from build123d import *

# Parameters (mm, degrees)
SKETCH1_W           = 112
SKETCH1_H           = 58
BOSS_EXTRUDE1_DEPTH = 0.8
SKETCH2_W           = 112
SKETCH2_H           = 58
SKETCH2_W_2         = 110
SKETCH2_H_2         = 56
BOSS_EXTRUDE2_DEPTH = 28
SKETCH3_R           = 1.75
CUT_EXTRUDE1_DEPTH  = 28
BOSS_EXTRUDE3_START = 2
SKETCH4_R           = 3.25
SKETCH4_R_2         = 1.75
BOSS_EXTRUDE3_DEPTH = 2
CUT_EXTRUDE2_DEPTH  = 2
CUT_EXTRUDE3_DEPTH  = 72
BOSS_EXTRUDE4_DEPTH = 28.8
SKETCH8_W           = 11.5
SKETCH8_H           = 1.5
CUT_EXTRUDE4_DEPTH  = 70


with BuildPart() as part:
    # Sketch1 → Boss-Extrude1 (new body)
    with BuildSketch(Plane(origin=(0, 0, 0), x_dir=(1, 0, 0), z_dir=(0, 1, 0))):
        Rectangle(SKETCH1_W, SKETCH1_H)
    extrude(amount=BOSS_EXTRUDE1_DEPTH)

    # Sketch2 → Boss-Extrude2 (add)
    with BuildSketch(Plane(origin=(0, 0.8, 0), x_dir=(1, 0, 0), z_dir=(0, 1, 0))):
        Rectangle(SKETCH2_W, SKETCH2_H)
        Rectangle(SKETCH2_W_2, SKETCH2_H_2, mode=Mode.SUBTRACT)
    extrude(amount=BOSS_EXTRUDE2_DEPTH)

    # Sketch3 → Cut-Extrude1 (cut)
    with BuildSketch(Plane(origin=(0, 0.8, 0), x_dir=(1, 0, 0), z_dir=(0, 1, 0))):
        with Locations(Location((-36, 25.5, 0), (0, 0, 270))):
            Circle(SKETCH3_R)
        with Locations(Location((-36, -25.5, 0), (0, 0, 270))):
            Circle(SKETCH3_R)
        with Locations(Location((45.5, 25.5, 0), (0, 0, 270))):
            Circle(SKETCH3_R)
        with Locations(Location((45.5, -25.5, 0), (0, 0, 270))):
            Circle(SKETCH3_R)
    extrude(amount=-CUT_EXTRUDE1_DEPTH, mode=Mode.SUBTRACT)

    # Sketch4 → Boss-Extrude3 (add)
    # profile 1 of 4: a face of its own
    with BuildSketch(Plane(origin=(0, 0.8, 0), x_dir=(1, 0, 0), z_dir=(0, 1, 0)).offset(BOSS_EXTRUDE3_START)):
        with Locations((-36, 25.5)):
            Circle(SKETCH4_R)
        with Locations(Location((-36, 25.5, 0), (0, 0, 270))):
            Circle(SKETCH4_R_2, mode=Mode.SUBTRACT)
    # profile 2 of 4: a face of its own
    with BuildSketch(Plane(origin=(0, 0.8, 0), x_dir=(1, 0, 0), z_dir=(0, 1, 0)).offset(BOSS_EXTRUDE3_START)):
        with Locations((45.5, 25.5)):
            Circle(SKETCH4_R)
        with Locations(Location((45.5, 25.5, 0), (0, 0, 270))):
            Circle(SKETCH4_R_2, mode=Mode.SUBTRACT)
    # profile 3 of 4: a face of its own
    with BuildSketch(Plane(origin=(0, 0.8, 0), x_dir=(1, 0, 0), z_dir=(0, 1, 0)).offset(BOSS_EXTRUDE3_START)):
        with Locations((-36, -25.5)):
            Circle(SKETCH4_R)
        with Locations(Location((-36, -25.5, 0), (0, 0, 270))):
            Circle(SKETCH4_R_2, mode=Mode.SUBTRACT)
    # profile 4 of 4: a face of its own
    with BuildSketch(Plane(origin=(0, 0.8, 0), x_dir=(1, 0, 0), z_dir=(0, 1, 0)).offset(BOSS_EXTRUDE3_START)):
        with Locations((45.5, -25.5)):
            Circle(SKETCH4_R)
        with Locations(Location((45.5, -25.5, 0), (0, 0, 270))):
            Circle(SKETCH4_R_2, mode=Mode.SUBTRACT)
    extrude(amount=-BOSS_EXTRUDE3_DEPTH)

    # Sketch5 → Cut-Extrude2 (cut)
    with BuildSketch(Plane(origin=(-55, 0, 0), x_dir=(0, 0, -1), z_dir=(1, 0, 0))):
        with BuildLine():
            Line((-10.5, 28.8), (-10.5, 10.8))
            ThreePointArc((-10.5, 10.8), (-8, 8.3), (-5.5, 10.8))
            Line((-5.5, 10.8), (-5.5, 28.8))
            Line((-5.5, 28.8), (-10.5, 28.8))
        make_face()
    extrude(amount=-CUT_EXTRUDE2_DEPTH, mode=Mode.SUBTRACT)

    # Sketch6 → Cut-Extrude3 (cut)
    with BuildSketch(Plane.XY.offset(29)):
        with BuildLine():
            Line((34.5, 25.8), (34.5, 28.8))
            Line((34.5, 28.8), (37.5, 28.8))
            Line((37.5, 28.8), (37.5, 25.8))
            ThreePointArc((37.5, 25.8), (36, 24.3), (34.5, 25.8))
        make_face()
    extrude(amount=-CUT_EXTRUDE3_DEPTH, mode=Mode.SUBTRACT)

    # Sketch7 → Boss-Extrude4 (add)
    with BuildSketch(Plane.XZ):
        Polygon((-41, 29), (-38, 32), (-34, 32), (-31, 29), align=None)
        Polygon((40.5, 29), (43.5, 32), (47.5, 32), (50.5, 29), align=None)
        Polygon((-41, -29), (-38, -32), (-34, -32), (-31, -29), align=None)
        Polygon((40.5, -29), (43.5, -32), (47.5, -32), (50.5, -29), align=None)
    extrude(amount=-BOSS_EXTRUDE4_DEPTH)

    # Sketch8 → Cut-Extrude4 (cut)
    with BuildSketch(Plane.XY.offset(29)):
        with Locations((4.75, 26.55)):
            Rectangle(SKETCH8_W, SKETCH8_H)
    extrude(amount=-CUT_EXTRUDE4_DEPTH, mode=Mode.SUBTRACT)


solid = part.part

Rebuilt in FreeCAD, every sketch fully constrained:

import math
import FreeCAD as App
import Part
import Sketcher

V = App.Vector

doc = App.newDocument("Part")
body = doc.addObject("PartDesign::Body", "Body")

# Sketch on XZ plane
sketch1 = doc.addObject("Sketcher::SketchObject", "Sketch")
body.addObject(sketch1)
sketch1.AttachmentSupport = (doc.XZ_Plane, [""])
sketch1.MapMode = "FlatFace"
sketch1.addGeometry([
    Part.LineSegment(V(-56, -29, 0), V(-56, 29, 0)),
    Part.LineSegment(V(-56, 29, 0), V(56, 29, 0)),
    Part.LineSegment(V(56, 29, 0), V(56, -29, 0)),
    Part.LineSegment(V(56, -29, 0), V(-56, -29, 0)),
], False)
sketch1.addConstraint([
    Sketcher.Constraint("Coincident", 0, 2, 1, 1),
    Sketcher.Constraint("Coincident", 1, 2, 2, 1),
    Sketcher.Constraint("Coincident", 2, 2, 3, 1),
    Sketcher.Constraint("Coincident", 3, 2, 0, 1),
    Sketcher.Constraint("Vertical", 0),
    Sketcher.Constraint("Horizontal", 1),
    Sketcher.Constraint("Vertical", 2),
    Sketcher.Constraint("Horizontal", 3),
    Sketcher.Constraint("Symmetric", 0, 2, 2, 2, -1, 1),
    Sketcher.Constraint("DistanceX", 1, 1, 1, 2, 112.0),
    Sketcher.Constraint("DistanceY", 0, 1, 0, 2, 58.0),
])
pad1 = doc.addObject("PartDesign::Pad", "Pad")
body.addObject(pad1)
pad1.Profile = sketch1
pad1.Length = 0.8
pad1.Reversed = True

# Sketch on XZ plane
sketch2 = doc.addObject("Sketcher::SketchObject", "Sketch001")
body.addObject(sketch2)
sketch2.AttachmentSupport = (doc.XZ_Plane, [""])
sketch2.MapMode = "FlatFace"
sketch2.AttachmentOffset = App.Placement(V(0, 0, -0.8), App.Rotation())
sketch2.addGeometry([
    Part.LineSegment(V(-56, -29, 0), V(-56, 29, 0)),  # 0
    Part.LineSegment(V(-56, 29, 0), V(56, 29, 0)),  # 1
    Part.LineSegment(V(56, 29, 0), V(56, -29, 0)),  # 2
    Part.LineSegment(V(56, -29, 0), V(-56, -29, 0)),  # 3
    Part.LineSegment(V(55, 28, 0), V(-55, 28, 0)),  # 4
    Part.LineSegment(V(-55, 28, 0), V(-55, -28, 0)),  # 5
    Part.LineSegment(V(-55, -28, 0), V(55, -28, 0)),  # 6
    Part.LineSegment(V(55, -28, 0), V(55, 28, 0)),  # 7
], False)
sketch2.addConstraint([
    Sketcher.Constraint("Coincident", 0, 2, 1, 1),
    Sketcher.Constraint("Coincident", 1, 2, 2, 1),
    Sketcher.Constraint("Coincident", 2, 2, 3, 1),
    Sketcher.Constraint("Coincident", 3, 2, 0, 1),
    Sketcher.Constraint("Coincident", 4, 2, 5, 1),
    Sketcher.Constraint("Coincident", 5, 2, 6, 1),
    Sketcher.Constraint("Coincident", 6, 2, 7, 1),
    Sketcher.Constraint("Coincident", 7, 2, 4, 1),
    Sketcher.Constraint("Vertical", 0),
    Sketcher.Constraint("Horizontal", 1),
    Sketcher.Constraint("Vertical", 2),
    Sketcher.Constraint("Horizontal", 3),
    Sketcher.Constraint("Horizontal", 4),
    Sketcher.Constraint("Vertical", 5),
    Sketcher.Constraint("Horizontal", 6),
    Sketcher.Constraint("Vertical", 7),
    Sketcher.Constraint("Symmetric", 0, 2, 2, 2, -1, 1),
    Sketcher.Constraint("Symmetric", 4, 2, 6, 2, -1, 1),
    Sketcher.Constraint("DistanceX", 1, 1, 1, 2, 112.0),
    Sketcher.Constraint("DistanceX", 4, 2, 4, 1, 110.0),
    Sketcher.Constraint("DistanceY", 0, 1, 0, 2, 58.0),
    Sketcher.Constraint("DistanceY", 5, 2, 5, 1, 56.0),
])
pad2 = doc.addObject("PartDesign::Pad", "Pad001")
body.addObject(pad2)
pad2.Profile = sketch2
pad2.Length = 28
pad2.Reversed = True

# Sketch on XZ plane
sketch3 = doc.addObject("Sketcher::SketchObject", "Sketch002")
body.addObject(sketch3)
sketch3.AttachmentSupport = (doc.XZ_Plane, [""])
sketch3.MapMode = "FlatFace"
sketch3.AttachmentOffset = App.Placement(V(0, 0, -0.8), App.Rotation())
sketch3.addGeometry([
    Part.Circle(V(-36, -25.5, 0), V(0, 0, 1), 1.8),
    Part.Circle(V(-36, 25.5, 0), V(0, 0, 1), 1.8),
    Part.Circle(V(45.5, -25.5, 0), V(0, 0, 1), 1.8),
    Part.Circle(V(45.5, 25.5, 0), V(0, 0, 1), 1.8),
], False)
sketch3.addConstraint([
    Sketcher.Constraint("Equal", 0, 1),
    Sketcher.Constraint("Equal", 1, 2),
    Sketcher.Constraint("Equal", 2, 3),
    Sketcher.Constraint("Symmetric", 0, 3, 1, 3, -1),
    Sketcher.Constraint("Symmetric", 2, 3, 3, 3, -1),
    Sketcher.Constraint("Horizontal", 0, 3, 2, 3),
    Sketcher.Constraint("Diameter", 0, 3.5),
    Sketcher.Constraint("DistanceX", 0, 3, -1, 1, 36.0),
    Sketcher.Constraint("DistanceY", 0, 3, 1, 3, 51.0),
    Sketcher.Constraint("DistanceX", -1, 1, 2, 3, 45.5),
])
pocket1 = doc.addObject("PartDesign::Pocket", "Pocket")
body.addObject(pocket1)
pocket1.Profile = sketch3
pocket1.Length = 28
pocket1.Reversed = True

# Sketch on XZ plane
sketch4 = doc.addObject("Sketcher::SketchObject", "Sketch003")
body.addObject(sketch4)
sketch4.AttachmentSupport = (doc.XZ_Plane, [""])
sketch4.MapMode = "FlatFace"
sketch4.AttachmentOffset = App.Placement(V(0, 0, -2.8), App.Rotation())
sketch4.addGeometry([
    Part.Circle(V(-36, -25.5, 0), V(0, 0, 1), 3.2),  # 0
    Part.Circle(V(-36, -25.5, 0), V(0, 0, 1), 1.8),  # 1
    Part.Circle(V(45.5, -25.5, 0), V(0, 0, 1), 3.2),  # 2
    Part.Circle(V(45.5, -25.5, 0), V(0, 0, 1), 1.8),  # 3
    Part.Circle(V(-36, 25.5, 0), V(0, 0, 1), 3.2),  # 4
    Part.Circle(V(-36, 25.5, 0), V(0, 0, 1), 1.8),  # 5
    Part.Circle(V(45.5, 25.5, 0), V(0, 0, 1), 3.2),  # 6
    Part.Circle(V(45.5, 25.5, 0), V(0, 0, 1), 1.8),  # 7
], False)
sketch4.addConstraint([
    Sketcher.Constraint("Coincident", 1, 3, 0, 3),
    Sketcher.Constraint("Coincident", 3, 3, 2, 3),
    Sketcher.Constraint("Coincident", 5, 3, 4, 3),
    Sketcher.Constraint("Coincident", 7, 3, 6, 3),
    Sketcher.Constraint("Equal", 0, 2),
    Sketcher.Constraint("Equal", 1, 3),
    Sketcher.Constraint("Equal", 2, 4),
    Sketcher.Constraint("Equal", 3, 5),
    Sketcher.Constraint("Equal", 4, 6),
    Sketcher.Constraint("Equal", 5, 7),
    Sketcher.Constraint("Symmetric", 0, 3, 4, 3, -1),
    Sketcher.Constraint("Symmetric", 2, 3, 6, 3, -1),
    Sketcher.Constraint("Horizontal", 1, 3, 2, 3),
    Sketcher.Constraint("Diameter", 0, 6.5),
    Sketcher.Constraint("Diameter", 1, 3.5),
    Sketcher.Constraint("DistanceX", 0, 3, -1, 1, 36.0),
    Sketcher.Constraint("DistanceY", 0, 3, 4, 3, 51.0),
    Sketcher.Constraint("DistanceX", -1, 1, 2, 3, 45.5),
])
pad3 = doc.addObject("PartDesign::Pad", "Pad002")
body.addObject(pad3)
pad3.Profile = sketch4
pad3.Length = 2

# Sketch on YZ plane
sketch5 = doc.addObject("Sketcher::SketchObject", "Sketch004")
body.addObject(sketch5)
sketch5.AttachmentSupport = (doc.YZ_Plane, [""])
sketch5.MapMode = "FlatFace"
sketch5.AttachmentOffset = App.Placement(V(0, 0, -55), App.Rotation())
sketch5.addGeometry([
    Part.LineSegment(V(28.8, 10.5, 0), V(10.8, 10.5, 0)),
    Part.ArcOfCircle(Part.Circle(V(10.8, 8, 0), V(0, 0, 1), 2.5), math.radians(90), math.radians(270)),
    Part.LineSegment(V(10.8, 5.5, 0), V(28.8, 5.5, 0)),
    Part.LineSegment(V(28.8, 5.5, 0), V(28.8, 10.5, 0)),
], False)
sketch5.addConstraint([
    Sketcher.Constraint("Tangent", 0, 2, 1, 1),
    Sketcher.Constraint("Tangent", 1, 2, 2, 1),
    Sketcher.Constraint("Coincident", 2, 2, 3, 1),
    Sketcher.Constraint("Coincident", 3, 2, 0, 1),
    Sketcher.Constraint("Horizontal", 0),
    Sketcher.Constraint("Horizontal", 2),
    Sketcher.Constraint("Vertical", 3),
    Sketcher.Constraint("Radius", 1, 2.5),
    Sketcher.Constraint("DistanceX", 0, 2, 0, 1, 18.0),
    Sketcher.Constraint("DistanceY", -1, 1, 1, 3, 8.0),
    Sketcher.Constraint("DistanceX", -1, 1, 1, 3, 10.8),
])
pocket2 = doc.addObject("PartDesign::Pocket", "Pocket001")
body.addObject(pocket2)
pocket2.Profile = sketch5
pocket2.Length = 2

# Sketch on XY plane
sketch6 = doc.addObject("Sketcher::SketchObject", "Sketch005")
body.addObject(sketch6)
sketch6.AttachmentSupport = (doc.XY_Plane, [""])
sketch6.MapMode = "FlatFace"
sketch6.AttachmentOffset = App.Placement(V(0, 0, 29), App.Rotation())
sketch6.addGeometry([
    Part.LineSegment(V(34.5, 28.8, 0), V(34.5, 25.8, 0)),
    Part.ArcOfCircle(Part.Circle(V(36, 25.8, 0), V(0, 0, 1), 1.5), math.radians(180), math.radians(360)),
    Part.LineSegment(V(37.5, 25.8, 0), V(37.5, 28.8, 0)),
    Part.LineSegment(V(37.5, 28.8, 0), V(34.5, 28.8, 0)),
], False)
sketch6.addConstraint([
    Sketcher.Constraint("Tangent", 0, 2, 1, 1),
    Sketcher.Constraint("Tangent", 1, 2, 2, 1),
    Sketcher.Constraint("Coincident", 2, 2, 3, 1),
    Sketcher.Constraint("Coincident", 3, 2, 0, 1),
    Sketcher.Constraint("Vertical", 0),
    Sketcher.Constraint("Vertical", 2),
    Sketcher.Constraint("Horizontal", 3),
    Sketcher.Constraint("Equal", 3, 0),
    Sketcher.Constraint("Radius", 1, 1.5),
    Sketcher.Constraint("DistanceX", -1, 1, 1, 3, 36.0),
    Sketcher.Constraint("DistanceY", -1, 1, 1, 3, 25.8),
])
pocket3 = doc.addObject("PartDesign::Pocket", "Pocket002")
body.addObject(pocket3)
pocket3.Profile = sketch6
pocket3.Length = 72

# Sketch on XZ plane
sketch7 = doc.addObject("Sketcher::SketchObject", "Sketch006")
body.addObject(sketch7)
sketch7.AttachmentSupport = (doc.XZ_Plane, [""])
sketch7.MapMode = "FlatFace"
sketch7.addGeometry([
    Part.LineSegment(V(-38, 32, 0), V(-41, 29, 0)),  # 0
    Part.LineSegment(V(-41, 29, 0), V(-31, 29, 0)),  # 1
    Part.LineSegment(V(-31, 29, 0), V(-34, 32, 0)),  # 2
    Part.LineSegment(V(-34, 32, 0), V(-38, 32, 0)),  # 3
    Part.LineSegment(V(43.5, 32, 0), V(40.5, 29, 0)),  # 4
    Part.LineSegment(V(40.5, 29, 0), V(50.5, 29, 0)),  # 5
    Part.LineSegment(V(50.5, 29, 0), V(47.5, 32, 0)),  # 6
    Part.LineSegment(V(47.5, 32, 0), V(43.5, 32, 0)),  # 7
    Part.LineSegment(V(-41, -29, 0), V(-38, -32, 0)),  # 8
    Part.LineSegment(V(-38, -32, 0), V(-34, -32, 0)),  # 9
    Part.LineSegment(V(-34, -32, 0), V(-31, -29, 0)),  # 10
    Part.LineSegment(V(-31, -29, 0), V(-41, -29, 0)),  # 11
    Part.LineSegment(V(40.5, -29, 0), V(43.5, -32, 0)),  # 12
    Part.LineSegment(V(43.5, -32, 0), V(47.5, -32, 0)),  # 13
    Part.LineSegment(V(47.5, -32, 0), V(50.5, -29, 0)),  # 14
    Part.LineSegment(V(50.5, -29, 0), V(40.5, -29, 0)),  # 15
], False)
sketch7.addConstraint([
    Sketcher.Constraint("Coincident", 0, 2, 1, 1),
    Sketcher.Constraint("Coincident", 1, 2, 2, 1),
    Sketcher.Constraint("Coincident", 2, 2, 3, 1),
    Sketcher.Constraint("Coincident", 3, 2, 0, 1),
    Sketcher.Constraint("Coincident", 4, 2, 5, 1),
    Sketcher.Constraint("Coincident", 5, 2, 6, 1),
    Sketcher.Constraint("Coincident", 6, 2, 7, 1),
    Sketcher.Constraint("Coincident", 7, 2, 4, 1),
    Sketcher.Constraint("Coincident", 8, 2, 9, 1),
    Sketcher.Constraint("Coincident", 9, 2, 10, 1),
    Sketcher.Constraint("Coincident", 10, 2, 11, 1),
    Sketcher.Constraint("Coincident", 11, 2, 8, 1),
    Sketcher.Constraint("Coincident", 12, 2, 13, 1),
    Sketcher.Constraint("Coincident", 13, 2, 14, 1),
    Sketcher.Constraint("Coincident", 14, 2, 15, 1),
    Sketcher.Constraint("Coincident", 15, 2, 12, 1),
    Sketcher.Constraint("Horizontal", 1),
    Sketcher.Constraint("Horizontal", 3),
    Sketcher.Constraint("Horizontal", 5),
    Sketcher.Constraint("Horizontal", 7),
    Sketcher.Constraint("Horizontal", 9),
    Sketcher.Constraint("Horizontal", 11),
    Sketcher.Constraint("Horizontal", 13),
    Sketcher.Constraint("Horizontal", 15),
    Sketcher.Constraint("Symmetric", 3, 2, 8, 2, -1),
    Sketcher.Constraint("Symmetric", 1, 2, 10, 2, -1),
    Sketcher.Constraint("Symmetric", 7, 2, 12, 2, -1),
    Sketcher.Constraint("Symmetric", 5, 2, 14, 2, -1),
    Sketcher.Constraint("Perpendicular", 0, 2),
    Sketcher.Constraint("Perpendicular", 2, 4),
    Sketcher.Constraint("Perpendicular", 4, 6),
    Sketcher.Constraint("Parallel", 6, 8),
    Sketcher.Constraint("Perpendicular", 8, 10),
    Sketcher.Constraint("Perpendicular", 10, 12),
    Sketcher.Constraint("Perpendicular", 12, 14),
    Sketcher.Constraint("Horizontal", 1, 2, 4, 2),
    Sketcher.Constraint("Horizontal", 3, 2, 6, 2),
    Sketcher.Constraint("Vertical", 2, 2, 9, 2),
    Sketcher.Constraint("Equal", 1, 5),
    Sketcher.Constraint("DistanceX", 1, 1, 1, 2, 10.0),
    Sketcher.Constraint("DistanceX", 3, 2, 3, 1, 4.0),
    Sketcher.Constraint("DistanceX", 0, 2, -1, 1, 41.0),
    Sketcher.Constraint("DistanceY", -1, 1, 0, 2, 29.0),
    Sketcher.Constraint("DistanceX", -1, 1, 4, 2, 40.5),
])
pad4 = doc.addObject("PartDesign::Pad", "Pad003")
body.addObject(pad4)
pad4.Profile = sketch7
pad4.Length = 28.8
pad4.Reversed = True

# Sketch on XY plane
sketch8 = doc.addObject("Sketcher::SketchObject", "Sketch007")
body.addObject(sketch8)
sketch8.AttachmentSupport = (doc.XY_Plane, [""])
sketch8.MapMode = "FlatFace"
sketch8.AttachmentOffset = App.Placement(V(0, 0, 29), App.Rotation())
sketch8.addGeometry([
    Part.LineSegment(V(-1, 27.3, 0), V(-1, 25.8, 0)),
    Part.LineSegment(V(-1, 25.8, 0), V(10.5, 25.8, 0)),
    Part.LineSegment(V(10.5, 25.8, 0), V(10.5, 27.3, 0)),
    Part.LineSegment(V(10.5, 27.3, 0), V(-1, 27.3, 0)),
], False)
sketch8.addConstraint([
    Sketcher.Constraint("Coincident", 0, 2, 1, 1),
    Sketcher.Constraint("Coincident", 1, 2, 2, 1),
    Sketcher.Constraint("Coincident", 2, 2, 3, 1),
    Sketcher.Constraint("Coincident", 3, 2, 0, 1),
    Sketcher.Constraint("Vertical", 0),
    Sketcher.Constraint("Horizontal", 1),
    Sketcher.Constraint("Vertical", 2),
    Sketcher.Constraint("Horizontal", 3),
    Sketcher.Constraint("DistanceX", 1, 1, 1, 2, 11.5),
    Sketcher.Constraint("DistanceY", 0, 2, 0, 1, 1.5),
    Sketcher.Constraint("DistanceX", 0, 2, -1, 1, 1.0),
    Sketcher.Constraint("DistanceY", -1, 1, 0, 2, 25.8),
])
pocket4 = doc.addObject("PartDesign::Pocket", "Pocket003")
body.addObject(pocket4)
pocket4.Profile = sketch8
pocket4.Length = 70

doc.recompute()
